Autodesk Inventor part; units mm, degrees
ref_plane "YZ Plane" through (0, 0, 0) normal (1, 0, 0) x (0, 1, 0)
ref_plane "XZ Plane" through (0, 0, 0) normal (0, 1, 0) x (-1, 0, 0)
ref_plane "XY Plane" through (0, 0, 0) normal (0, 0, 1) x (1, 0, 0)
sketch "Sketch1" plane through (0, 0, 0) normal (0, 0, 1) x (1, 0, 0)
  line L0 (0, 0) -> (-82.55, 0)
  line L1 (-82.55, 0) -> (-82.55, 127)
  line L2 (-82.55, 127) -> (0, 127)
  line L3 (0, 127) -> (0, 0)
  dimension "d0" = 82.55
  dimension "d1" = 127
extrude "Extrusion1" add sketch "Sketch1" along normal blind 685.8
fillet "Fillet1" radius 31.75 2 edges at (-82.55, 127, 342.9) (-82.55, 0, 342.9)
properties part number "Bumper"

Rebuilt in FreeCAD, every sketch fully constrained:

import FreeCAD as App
import Part
import Sketcher
Q = App.Units.Quantity


def edges_at(feature, points):
    """Names of the edges that pass closest to the given points."""
    edges = feature.Shape.Edges
    near = lambda p: min(range(len(edges)), key=lambda i: edges[i].distToShape(Part.Vertex(*p))[0])
    return sorted({f"Edge{near(p) + 1}" for p in points})

doc = App.newDocument("Part")
body = doc.addObject("PartDesign::Body", "Body")

sketch1 = body.newObject("Sketcher::SketchObject", "Sketch")
sketch1.AttachmentSupport = (doc.getObject("XY_Plane"), [""])
sketch1.MapMode = "FlatFace"
sketch1.addGeometry([
    Part.LineSegment(App.Vector(-83, 0, 0), App.Vector(0, 0, 0)),
    Part.LineSegment(App.Vector(0, 0, 0), App.Vector(0, 127, 0)),
    Part.LineSegment(App.Vector(0, 127, 0), App.Vector(-83, 127, 0)),
    Part.LineSegment(App.Vector(-83, 127, 0), App.Vector(-83, 0, 0)),
], False)
sketch1.addConstraint([
    Sketcher.Constraint("Coincident", 0, 2, 1, 1),
    Sketcher.Constraint("Coincident", 1, 2, 2, 1),
    Sketcher.Constraint("Coincident", 2, 2, 3, 1),
    Sketcher.Constraint("Coincident", 3, 2, 0, 1),
    Sketcher.Constraint("Horizontal", 0),
    Sketcher.Constraint("Vertical", 1),
    Sketcher.Constraint("Horizontal", 2),
    Sketcher.Constraint("Vertical", 3),
    Sketcher.Constraint("Coincident", 0, 2, -1, 1),
    Sketcher.Constraint("DistanceY", 1, 1, 1, 2, Q("5 in")),
    Sketcher.Constraint("DistanceX", 0, 1, 0, 2, Q("3.25 in")),
])
pad1 = body.newObject("PartDesign::Pad", "Pad")
pad1.Profile = sketch1
pad1.Length = Q("27 in")
doc.recompute()

fillet = body.newObject("PartDesign::Fillet", "Fillet")
fillet.Base = (pad1, edges_at(pad1, [(-82.55, 127, 342.9), (-82.55, 0, 342.9)]))
fillet.Radius = Q("1.25 in")

doc.recompute()
